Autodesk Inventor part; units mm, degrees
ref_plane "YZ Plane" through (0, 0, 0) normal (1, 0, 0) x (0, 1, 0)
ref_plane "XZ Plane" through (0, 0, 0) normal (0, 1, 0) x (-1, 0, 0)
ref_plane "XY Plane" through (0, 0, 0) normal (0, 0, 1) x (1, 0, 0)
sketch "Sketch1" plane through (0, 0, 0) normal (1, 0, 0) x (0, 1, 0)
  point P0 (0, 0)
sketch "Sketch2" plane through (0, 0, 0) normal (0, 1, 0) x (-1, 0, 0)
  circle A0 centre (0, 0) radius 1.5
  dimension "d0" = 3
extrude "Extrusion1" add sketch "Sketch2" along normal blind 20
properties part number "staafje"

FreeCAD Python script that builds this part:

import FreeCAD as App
import Part
import Sketcher
from FreeCAD import Vector

doc = App.newDocument("Part")
body = doc.addObject("PartDesign::Body", "Body")

# Sketch on XZ plane
sketch1 = body.newObject("Sketcher::SketchObject", "Sketch")
sketch1.AttachmentSupport = (doc.getObject("XZ_Plane"), [""])
sketch1.MapMode = "FlatFace"
sketch1.addGeometry(Part.Circle(Vector(0, 0, 0), Vector(0, 0, 1), 1.5), False)
sketch1.addConstraint([
    Sketcher.Constraint("Coincident", 0, 3, -1, 1),
    Sketcher.Constraint("Diameter", 0, 3.0),
])
pad1 = body.newObject("PartDesign::Pad", "Pad")
pad1.Profile = sketch1
pad1.Length = 20
pad1.Reversed = True

doc.recompute()
